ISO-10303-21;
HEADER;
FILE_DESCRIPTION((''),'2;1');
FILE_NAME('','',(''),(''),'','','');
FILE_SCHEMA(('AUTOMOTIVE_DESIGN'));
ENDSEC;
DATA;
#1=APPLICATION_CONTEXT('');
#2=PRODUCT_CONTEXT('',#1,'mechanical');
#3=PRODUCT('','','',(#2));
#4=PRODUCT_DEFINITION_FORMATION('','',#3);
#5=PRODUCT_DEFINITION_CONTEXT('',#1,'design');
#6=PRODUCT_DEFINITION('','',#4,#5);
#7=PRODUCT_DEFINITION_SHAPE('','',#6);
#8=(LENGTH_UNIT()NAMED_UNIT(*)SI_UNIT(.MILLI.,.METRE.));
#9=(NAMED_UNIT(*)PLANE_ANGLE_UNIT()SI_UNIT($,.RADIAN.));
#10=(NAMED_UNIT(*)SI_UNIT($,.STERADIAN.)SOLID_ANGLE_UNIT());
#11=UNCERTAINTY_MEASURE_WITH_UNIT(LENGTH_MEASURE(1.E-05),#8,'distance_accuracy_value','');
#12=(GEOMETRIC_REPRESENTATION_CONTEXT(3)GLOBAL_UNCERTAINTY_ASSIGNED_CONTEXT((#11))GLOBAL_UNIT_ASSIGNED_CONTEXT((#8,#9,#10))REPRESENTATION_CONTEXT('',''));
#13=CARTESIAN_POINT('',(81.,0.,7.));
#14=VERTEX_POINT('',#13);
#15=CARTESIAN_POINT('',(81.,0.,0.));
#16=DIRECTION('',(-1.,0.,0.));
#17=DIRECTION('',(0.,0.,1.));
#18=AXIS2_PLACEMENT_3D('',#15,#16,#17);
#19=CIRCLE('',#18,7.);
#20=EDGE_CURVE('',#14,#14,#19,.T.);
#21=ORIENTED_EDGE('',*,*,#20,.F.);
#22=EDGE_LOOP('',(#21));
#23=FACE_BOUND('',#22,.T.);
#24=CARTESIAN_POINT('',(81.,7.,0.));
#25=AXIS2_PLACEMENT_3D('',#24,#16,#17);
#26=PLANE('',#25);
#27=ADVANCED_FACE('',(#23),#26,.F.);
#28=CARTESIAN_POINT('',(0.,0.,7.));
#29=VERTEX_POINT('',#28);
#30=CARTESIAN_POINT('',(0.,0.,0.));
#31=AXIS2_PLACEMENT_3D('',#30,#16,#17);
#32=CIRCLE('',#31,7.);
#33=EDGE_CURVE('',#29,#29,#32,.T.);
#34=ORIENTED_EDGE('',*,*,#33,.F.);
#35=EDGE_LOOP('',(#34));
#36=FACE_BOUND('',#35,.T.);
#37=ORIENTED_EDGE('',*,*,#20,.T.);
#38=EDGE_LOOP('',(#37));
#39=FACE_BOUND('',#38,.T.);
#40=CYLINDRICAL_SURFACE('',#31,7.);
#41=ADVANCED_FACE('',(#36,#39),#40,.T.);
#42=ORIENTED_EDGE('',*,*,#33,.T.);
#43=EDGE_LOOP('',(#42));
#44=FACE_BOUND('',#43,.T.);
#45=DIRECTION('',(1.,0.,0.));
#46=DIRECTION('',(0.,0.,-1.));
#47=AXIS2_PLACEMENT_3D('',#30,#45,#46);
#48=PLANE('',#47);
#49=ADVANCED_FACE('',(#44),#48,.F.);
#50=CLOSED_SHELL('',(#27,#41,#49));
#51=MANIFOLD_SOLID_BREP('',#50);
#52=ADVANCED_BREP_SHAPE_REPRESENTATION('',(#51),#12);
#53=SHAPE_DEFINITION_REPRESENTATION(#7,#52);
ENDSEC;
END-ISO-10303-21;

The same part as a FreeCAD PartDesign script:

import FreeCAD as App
import Part
import Sketcher
from FreeCAD import Vector
Q = App.Units.Quantity


def add_polygon(sketch, points):
    """Adds a closed chain of lines whose ends are joined by coincident constraints."""
    first, n = sketch.GeometryCount, len(points)
    for a, b in zip(points, points[1:] + points[:1]):
        sketch.addGeometry(Part.LineSegment(App.Vector(*a, 0), App.Vector(*b, 0)), False)
    for i in range(n):
        sketch.addConstraint(Sketcher.Constraint("Coincident", first + i, 2, first + (i + 1) % n, 1))

doc = App.newDocument("Part")
body = doc.addObject("PartDesign::Body", "Body")

# Sketch on XY plane
sketch1 = doc.addObject("Sketcher::SketchObject", "Sketch")
body.addObject(sketch1)
sketch1.AttachmentSupport = (doc.XY_Plane, [""])
sketch1.MapMode = "FlatFace"
add_polygon(sketch1, [(0, 7), (0, 0), (81, 0), (81, 7)])  # lines 0-3
sketch1.addConstraint([
    Sketcher.Constraint("Vertical", 0),
    Sketcher.Constraint("Horizontal", 1),
    Sketcher.Constraint("Vertical", 2),
    Sketcher.Constraint("Horizontal", 3),
    Sketcher.Constraint("Coincident", 0, 2, -1, 1),
    Sketcher.Constraint("DistanceX", 1, 1, 1, 2, Q("81 mm")),
    Sketcher.Constraint("DistanceY", 0, 2, 0, 1, Q("7 mm")),
])
revolution = doc.addObject("PartDesign::Revolution", "Revolution")
body.addObject(revolution)
revolution.Profile = sketch1
revolution.ReferenceAxis = (sketch1, ["H_Axis"])
revolution.Angle = 360

doc.recompute()
